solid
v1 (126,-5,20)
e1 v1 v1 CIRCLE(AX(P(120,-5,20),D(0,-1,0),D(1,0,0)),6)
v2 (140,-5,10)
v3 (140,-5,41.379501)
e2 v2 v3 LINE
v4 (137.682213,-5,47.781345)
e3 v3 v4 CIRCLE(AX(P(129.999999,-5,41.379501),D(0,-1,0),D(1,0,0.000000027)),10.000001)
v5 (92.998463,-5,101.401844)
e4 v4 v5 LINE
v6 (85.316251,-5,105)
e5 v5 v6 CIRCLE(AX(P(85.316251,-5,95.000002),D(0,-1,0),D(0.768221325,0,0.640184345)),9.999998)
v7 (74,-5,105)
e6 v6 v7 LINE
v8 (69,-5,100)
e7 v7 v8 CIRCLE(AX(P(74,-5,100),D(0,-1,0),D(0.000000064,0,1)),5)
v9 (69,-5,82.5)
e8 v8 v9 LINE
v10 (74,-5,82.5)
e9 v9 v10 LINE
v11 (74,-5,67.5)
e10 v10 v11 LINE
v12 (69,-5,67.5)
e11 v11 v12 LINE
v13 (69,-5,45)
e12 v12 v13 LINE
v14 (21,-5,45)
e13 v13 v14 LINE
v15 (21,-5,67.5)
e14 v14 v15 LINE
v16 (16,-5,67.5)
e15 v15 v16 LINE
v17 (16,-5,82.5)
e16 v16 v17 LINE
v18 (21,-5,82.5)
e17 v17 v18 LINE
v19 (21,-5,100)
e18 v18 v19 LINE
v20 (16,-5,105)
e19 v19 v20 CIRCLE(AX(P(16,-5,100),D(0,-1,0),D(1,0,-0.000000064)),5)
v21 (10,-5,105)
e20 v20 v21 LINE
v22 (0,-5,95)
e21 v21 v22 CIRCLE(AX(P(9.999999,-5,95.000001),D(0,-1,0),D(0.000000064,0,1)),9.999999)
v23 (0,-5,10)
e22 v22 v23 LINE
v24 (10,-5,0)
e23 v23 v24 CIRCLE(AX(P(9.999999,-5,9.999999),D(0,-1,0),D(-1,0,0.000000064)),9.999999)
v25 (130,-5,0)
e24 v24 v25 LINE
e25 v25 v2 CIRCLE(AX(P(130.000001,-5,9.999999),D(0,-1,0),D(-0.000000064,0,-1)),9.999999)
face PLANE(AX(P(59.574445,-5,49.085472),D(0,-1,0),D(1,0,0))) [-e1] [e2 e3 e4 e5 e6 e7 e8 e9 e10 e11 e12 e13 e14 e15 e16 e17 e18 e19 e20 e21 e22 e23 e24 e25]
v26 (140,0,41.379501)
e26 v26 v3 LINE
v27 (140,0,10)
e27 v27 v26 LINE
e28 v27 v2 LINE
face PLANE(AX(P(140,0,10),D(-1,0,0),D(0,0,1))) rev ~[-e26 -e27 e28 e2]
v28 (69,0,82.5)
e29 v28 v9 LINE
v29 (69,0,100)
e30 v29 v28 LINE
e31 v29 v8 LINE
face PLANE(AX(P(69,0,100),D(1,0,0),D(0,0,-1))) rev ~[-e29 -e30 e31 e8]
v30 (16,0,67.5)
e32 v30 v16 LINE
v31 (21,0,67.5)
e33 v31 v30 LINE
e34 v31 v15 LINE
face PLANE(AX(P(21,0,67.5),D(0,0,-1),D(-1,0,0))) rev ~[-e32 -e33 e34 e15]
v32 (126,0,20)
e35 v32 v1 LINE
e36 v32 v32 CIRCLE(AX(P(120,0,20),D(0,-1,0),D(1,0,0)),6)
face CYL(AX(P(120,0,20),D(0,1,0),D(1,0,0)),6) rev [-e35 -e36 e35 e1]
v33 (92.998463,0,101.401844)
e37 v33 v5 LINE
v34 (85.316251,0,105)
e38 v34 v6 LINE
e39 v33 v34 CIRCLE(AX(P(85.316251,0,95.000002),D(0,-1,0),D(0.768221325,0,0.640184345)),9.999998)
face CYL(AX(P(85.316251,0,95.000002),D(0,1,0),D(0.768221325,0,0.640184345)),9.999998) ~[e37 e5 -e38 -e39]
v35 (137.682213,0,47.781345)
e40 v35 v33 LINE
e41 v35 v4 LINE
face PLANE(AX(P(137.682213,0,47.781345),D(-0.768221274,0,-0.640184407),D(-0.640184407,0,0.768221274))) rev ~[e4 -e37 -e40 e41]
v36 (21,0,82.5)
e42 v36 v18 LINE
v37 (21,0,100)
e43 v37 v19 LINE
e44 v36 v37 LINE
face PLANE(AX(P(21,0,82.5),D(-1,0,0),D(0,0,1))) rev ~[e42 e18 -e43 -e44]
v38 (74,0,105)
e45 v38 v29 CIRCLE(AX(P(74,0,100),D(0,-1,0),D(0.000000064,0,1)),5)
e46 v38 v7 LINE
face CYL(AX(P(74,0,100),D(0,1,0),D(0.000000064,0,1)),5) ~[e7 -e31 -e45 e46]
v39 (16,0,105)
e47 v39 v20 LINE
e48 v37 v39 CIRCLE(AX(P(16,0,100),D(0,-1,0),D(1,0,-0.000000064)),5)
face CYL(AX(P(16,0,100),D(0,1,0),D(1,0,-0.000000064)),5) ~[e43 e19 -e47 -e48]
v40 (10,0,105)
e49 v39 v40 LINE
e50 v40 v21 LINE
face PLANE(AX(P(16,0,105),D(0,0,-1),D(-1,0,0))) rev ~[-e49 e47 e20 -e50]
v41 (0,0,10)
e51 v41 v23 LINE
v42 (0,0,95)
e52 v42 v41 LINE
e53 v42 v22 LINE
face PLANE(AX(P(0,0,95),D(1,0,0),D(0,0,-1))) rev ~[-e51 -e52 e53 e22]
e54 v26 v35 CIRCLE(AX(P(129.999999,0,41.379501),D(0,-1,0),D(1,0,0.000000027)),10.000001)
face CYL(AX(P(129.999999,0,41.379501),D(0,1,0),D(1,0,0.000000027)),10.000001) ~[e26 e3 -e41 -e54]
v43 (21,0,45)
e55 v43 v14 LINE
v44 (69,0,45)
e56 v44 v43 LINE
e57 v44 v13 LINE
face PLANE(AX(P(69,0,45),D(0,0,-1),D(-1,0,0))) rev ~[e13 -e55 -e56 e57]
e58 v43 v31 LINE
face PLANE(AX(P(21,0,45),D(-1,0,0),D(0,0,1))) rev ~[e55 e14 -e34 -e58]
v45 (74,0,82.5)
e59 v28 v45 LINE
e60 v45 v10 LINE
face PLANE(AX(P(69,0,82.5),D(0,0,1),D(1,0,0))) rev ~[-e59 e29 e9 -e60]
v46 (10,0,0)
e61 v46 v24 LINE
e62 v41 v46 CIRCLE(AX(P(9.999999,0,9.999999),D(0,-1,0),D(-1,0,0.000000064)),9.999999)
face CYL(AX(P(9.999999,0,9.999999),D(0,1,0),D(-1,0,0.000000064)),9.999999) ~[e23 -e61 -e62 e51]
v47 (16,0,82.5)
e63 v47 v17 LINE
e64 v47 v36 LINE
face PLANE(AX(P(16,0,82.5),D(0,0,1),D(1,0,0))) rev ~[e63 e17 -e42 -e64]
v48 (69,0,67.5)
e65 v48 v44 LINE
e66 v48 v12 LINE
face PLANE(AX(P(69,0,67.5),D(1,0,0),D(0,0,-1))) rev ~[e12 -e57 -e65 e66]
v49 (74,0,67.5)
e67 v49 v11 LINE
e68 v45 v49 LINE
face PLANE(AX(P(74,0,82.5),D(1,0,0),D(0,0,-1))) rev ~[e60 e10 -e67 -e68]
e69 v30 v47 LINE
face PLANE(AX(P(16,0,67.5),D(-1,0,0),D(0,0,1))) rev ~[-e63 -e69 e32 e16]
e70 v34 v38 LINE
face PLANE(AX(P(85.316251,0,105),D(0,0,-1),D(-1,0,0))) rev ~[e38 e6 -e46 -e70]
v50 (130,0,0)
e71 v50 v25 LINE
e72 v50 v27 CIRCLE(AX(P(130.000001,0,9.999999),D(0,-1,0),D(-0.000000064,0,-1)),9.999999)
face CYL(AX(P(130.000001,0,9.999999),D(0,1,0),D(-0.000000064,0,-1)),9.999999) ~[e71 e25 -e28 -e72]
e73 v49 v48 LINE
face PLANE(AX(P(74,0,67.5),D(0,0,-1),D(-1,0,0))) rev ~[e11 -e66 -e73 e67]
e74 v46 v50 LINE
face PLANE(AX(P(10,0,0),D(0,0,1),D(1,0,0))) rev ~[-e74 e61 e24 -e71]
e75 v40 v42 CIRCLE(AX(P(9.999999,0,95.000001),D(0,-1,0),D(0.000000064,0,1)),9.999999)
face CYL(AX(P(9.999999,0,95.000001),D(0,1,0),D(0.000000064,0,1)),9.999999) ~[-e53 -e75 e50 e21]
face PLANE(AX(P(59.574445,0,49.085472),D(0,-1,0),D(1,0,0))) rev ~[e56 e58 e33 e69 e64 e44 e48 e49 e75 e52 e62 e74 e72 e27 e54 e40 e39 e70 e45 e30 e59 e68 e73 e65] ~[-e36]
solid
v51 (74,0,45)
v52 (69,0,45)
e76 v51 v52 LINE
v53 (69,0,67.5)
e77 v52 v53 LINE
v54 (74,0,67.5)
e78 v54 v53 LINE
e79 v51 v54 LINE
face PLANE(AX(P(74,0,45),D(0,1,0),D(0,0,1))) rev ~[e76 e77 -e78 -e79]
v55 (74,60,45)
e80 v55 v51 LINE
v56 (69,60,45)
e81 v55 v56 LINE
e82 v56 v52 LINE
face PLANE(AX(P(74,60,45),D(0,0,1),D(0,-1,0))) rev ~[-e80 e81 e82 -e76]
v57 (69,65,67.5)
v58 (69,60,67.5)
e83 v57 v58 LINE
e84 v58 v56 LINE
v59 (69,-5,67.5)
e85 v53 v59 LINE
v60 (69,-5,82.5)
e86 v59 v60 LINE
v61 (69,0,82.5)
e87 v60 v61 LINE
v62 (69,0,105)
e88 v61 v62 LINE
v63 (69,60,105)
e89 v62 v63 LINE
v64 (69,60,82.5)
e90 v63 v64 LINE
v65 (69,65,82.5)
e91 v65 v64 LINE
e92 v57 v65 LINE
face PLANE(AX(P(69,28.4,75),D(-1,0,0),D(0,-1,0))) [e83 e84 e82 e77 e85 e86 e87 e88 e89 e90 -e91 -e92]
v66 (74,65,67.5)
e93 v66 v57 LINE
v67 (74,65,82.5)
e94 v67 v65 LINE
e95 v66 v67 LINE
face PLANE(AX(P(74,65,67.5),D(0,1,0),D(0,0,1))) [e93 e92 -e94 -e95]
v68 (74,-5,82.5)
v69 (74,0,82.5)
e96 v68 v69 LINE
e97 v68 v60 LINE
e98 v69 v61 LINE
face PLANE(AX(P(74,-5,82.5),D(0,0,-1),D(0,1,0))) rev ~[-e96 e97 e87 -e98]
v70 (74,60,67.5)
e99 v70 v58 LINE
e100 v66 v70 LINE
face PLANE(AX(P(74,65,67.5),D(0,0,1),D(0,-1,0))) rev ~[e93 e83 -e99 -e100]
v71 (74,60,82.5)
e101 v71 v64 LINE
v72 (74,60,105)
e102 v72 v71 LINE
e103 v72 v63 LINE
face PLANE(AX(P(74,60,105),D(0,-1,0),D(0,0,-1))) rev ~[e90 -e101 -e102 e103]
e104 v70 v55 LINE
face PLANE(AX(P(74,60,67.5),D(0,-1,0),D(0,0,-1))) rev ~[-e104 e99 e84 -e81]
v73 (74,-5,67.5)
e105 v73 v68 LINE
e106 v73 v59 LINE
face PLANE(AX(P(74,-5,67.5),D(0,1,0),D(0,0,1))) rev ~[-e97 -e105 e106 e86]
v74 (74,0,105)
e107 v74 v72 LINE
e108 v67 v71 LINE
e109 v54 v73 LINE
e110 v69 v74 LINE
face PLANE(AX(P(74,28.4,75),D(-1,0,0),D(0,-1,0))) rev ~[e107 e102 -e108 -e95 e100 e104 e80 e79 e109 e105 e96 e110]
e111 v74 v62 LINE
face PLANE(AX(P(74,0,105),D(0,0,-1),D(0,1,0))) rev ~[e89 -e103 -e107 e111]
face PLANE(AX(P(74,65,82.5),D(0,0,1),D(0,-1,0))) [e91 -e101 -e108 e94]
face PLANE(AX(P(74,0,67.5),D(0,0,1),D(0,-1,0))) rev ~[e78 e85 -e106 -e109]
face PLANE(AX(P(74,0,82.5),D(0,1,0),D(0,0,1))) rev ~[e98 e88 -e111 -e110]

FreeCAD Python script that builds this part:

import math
import FreeCAD as App
import Part
import Sketcher
from FreeCAD import Vector


def add_polygon(sketch, points):
    """Adds a closed chain of lines whose ends are joined by coincident constraints."""
    first, n = sketch.GeometryCount, len(points)
    for a, b in zip(points, points[1:] + points[:1]):
        sketch.addGeometry(Part.LineSegment(App.Vector(*a, 0), App.Vector(*b, 0)), False)
    for i in range(n):
        sketch.addConstraint(Sketcher.Constraint("Coincident", first + i, 2, first + (i + 1) % n, 1))

doc = App.newDocument("Part")
body = doc.addObject("PartDesign::Body", "Body")

# Sketch on XZ plane
sketch1 = doc.addObject("Sketcher::SketchObject", "Sketch")
body.addObject(sketch1)
sketch1.AttachmentSupport = (doc.XZ_Plane, [""])
sketch1.MapMode = "FlatFace"
sketch1.addGeometry([
    Part.ArcOfCircle(Part.Circle(Vector(9.999999, 9.999999, 0), Vector(0, 0, 1), 9.999999), math.radians(179.999996), math.radians(270.000004)),  # 0
    Part.LineSegment(Vector(10, 0, 0), Vector(130, 0, 0)),  # 1
    Part.ArcOfCircle(Part.Circle(Vector(130.000001, 9.999999, 0), Vector(0, 0, 1), 9.999999), math.radians(-90.000004), math.radians(0.000004)),  # 2
    Part.LineSegment(Vector(140, 10, 0), Vector(140, 41.379501, 0)),  # 3
    Part.ArcOfCircle(Part.Circle(Vector(129.999999, 41.379501, 0), Vector(0, 0, 1), 10.000001), math.radians(0.000002), math.radians(39.805566)),  # 4
    Part.LineSegment(Vector(137.682213, 47.781345, 0), Vector(92.998463, 101.401844, 0)),  # 5
    Part.ArcOfCircle(Part.Circle(Vector(85.316251, 95.000002, 0), Vector(0, 0, 1), 9.999998), math.radians(39.805567), math.radians(90)),  # 6
    Part.LineSegment(Vector(85.316251, 105, 0), Vector(74, 105, 0)),  # 7
    Part.ArcOfCircle(Part.Circle(Vector(74, 100, 0), Vector(0, 0, 1), 5), math.radians(89.999996), math.radians(180.000004)),  # 8
    Part.LineSegment(Vector(69, 100, 0), Vector(69, 82.5, 0)),  # 9
    Part.LineSegment(Vector(69, 82.5, 0), Vector(74, 82.5, 0)),  # 10
    Part.LineSegment(Vector(74, 82.5, 0), Vector(74, 67.5, 0)),  # 11
    Part.LineSegment(Vector(74, 67.5, 0), Vector(69, 67.5, 0)),  # 12
    Part.LineSegment(Vector(69, 67.5, 0), Vector(69, 45, 0)),  # 13
    Part.LineSegment(Vector(69, 45, 0), Vector(21, 45, 0)),  # 14
    Part.LineSegment(Vector(21, 45, 0), Vector(21, 67.5, 0)),  # 15
    Part.LineSegment(Vector(21, 67.5, 0), Vector(16, 67.5, 0)),  # 16
    Part.LineSegment(Vector(16, 67.5, 0), Vector(16, 82.5, 0)),  # 17
    Part.LineSegment(Vector(16, 82.5, 0), Vector(21, 82.5, 0)),  # 18
    Part.LineSegment(Vector(21, 82.5, 0), Vector(21, 100, 0)),  # 19
    Part.ArcOfCircle(Part.Circle(Vector(16, 100, 0), Vector(0, 0, 1), 5), math.radians(-0.000004), math.radians(90.000004)),  # 20
    Part.LineSegment(Vector(16, 105, 0), Vector(10, 105, 0)),  # 21
    Part.ArcOfCircle(Part.Circle(Vector(9.999999, 95.000001, 0), Vector(0, 0, 1), 9.999999), math.radians(89.999996), math.radians(180.000004)),  # 22
    Part.LineSegment(Vector(0, 95, 0), Vector(0, 10, 0)),  # 23
    Part.Circle(Vector(120, 20, 0), Vector(0, 0, 1), 6),  # 24
], False)
sketch1.addConstraint([
    Sketcher.Constraint("Tangent", 0, 2, 1, 1),
    Sketcher.Constraint("Tangent", 1, 2, 2, 1),
    Sketcher.Constraint("Tangent", 2, 2, 3, 1),
    Sketcher.Constraint("Tangent", 3, 2, 4, 1),
    Sketcher.Constraint("Tangent", 4, 2, 5, 1),
    Sketcher.Constraint("Tangent", 5, 2, 6, 1),
    Sketcher.Constraint("Tangent", 6, 2, 7, 1),
    Sketcher.Constraint("Tangent", 7, 2, 8, 1),
    Sketcher.Constraint("Tangent", 8, 2, 9, 1),
    Sketcher.Constraint("Coincident", 9, 2, 10, 1),
    Sketcher.Constraint("Coincident", 10, 2, 11, 1),
    Sketcher.Constraint("Coincident", 11, 2, 12, 1),
    Sketcher.Constraint("Coincident", 12, 2, 13, 1),
    Sketcher.Constraint("Coincident", 13, 2, 14, 1),
    Sketcher.Constraint("Coincident", 14, 2, 15, 1),
    Sketcher.Constraint("Coincident", 15, 2, 16, 1),
    Sketcher.Constraint("Coincident", 16, 2, 17, 1),
    Sketcher.Constraint("Coincident", 17, 2, 18, 1),
    Sketcher.Constraint("Coincident", 18, 2, 19, 1),
    Sketcher.Constraint("Tangent", 19, 2, 20, 1),
    Sketcher.Constraint("Tangent", 20, 2, 21, 1),
    Sketcher.Constraint("Tangent", 21, 2, 22, 1),
    Sketcher.Constraint("Tangent", 22, 2, 23, 1),
    Sketcher.Constraint("Tangent", 23, 2, 0, 1),
    Sketcher.Constraint("Horizontal", 1),
    Sketcher.Constraint("Vertical", 3),
    Sketcher.Constraint("Horizontal", 7),
    Sketcher.Constraint("Vertical", 9),
    Sketcher.Constraint("Horizontal", 10),
    Sketcher.Constraint("Vertical", 11),
    Sketcher.Constraint("Horizontal", 12),
    Sketcher.Constraint("Vertical", 13),
    Sketcher.Constraint("Horizontal", 14),
    Sketcher.Constraint("Vertical", 15),
    Sketcher.Constraint("Horizontal", 16),
    Sketcher.Constraint("Vertical", 17),
    Sketcher.Constraint("Horizontal", 18),
    Sketcher.Constraint("Vertical", 19),
    Sketcher.Constraint("Horizontal", 21),
    Sketcher.Constraint("Vertical", 23),
    Sketcher.Constraint("Equal", 0, 2),
    Sketcher.Constraint("Equal", 2, 6),
    Sketcher.Constraint("Equal", 8, 20),
    Sketcher.Constraint("Equal", 6, 22),
    Sketcher.Constraint("PointOnObject", 0, 2, -1),
    Sketcher.Constraint("PointOnObject", 22, 2, -2),
    Sketcher.Constraint("Horizontal", 8, 3, 20, 3),
    Sketcher.Constraint("Horizontal", 12, 2, 15, 2),
    Sketcher.Constraint("Horizontal", 10, 2, 17, 2),
    Sketcher.Constraint("Vertical", 4, 3, 1, 2),
    Sketcher.Constraint("Vertical", 7, 2, 10, 2),
    Sketcher.Constraint("Vertical", 9, 2, 12, 2),
    Sketcher.Constraint("Vertical", 20, 3, 16, 2),
    Sketcher.Constraint("Vertical", 15, 2, 18, 2),
    Sketcher.Constraint("Diameter", 24, 12.0),
    Sketcher.Constraint("Radius", 0, 9.999999),
    Sketcher.Constraint("Radius", 8, 5.0),
    Sketcher.Constraint("DistanceX", 1, 1, 1, 2, 120.0),
    Sketcher.Constraint("DistanceX", 14, 2, 14, 1, 48.0),
    Sketcher.Constraint("DistanceX", 21, 2, 21, 1, 6.0),
    Sketcher.Constraint("DistanceY", 11, 2, 11, 1, 15.0),
    Sketcher.Constraint("DistanceY", 23, 2, 23, 1, 85.0),
    Sketcher.Constraint("DistanceY", 9, 2, 9, 1, 17.5),
    Sketcher.Constraint("DistanceY", 13, 2, 13, 1, 22.5),
    Sketcher.Constraint("DistanceX", -1, 1, 24, 3, 120.0),
    Sketcher.Constraint("DistanceY", -1, 1, 24, 3, 20.0),
    Sketcher.Constraint("DistanceY", 3, 1, 3, 2, 31.379501),
    Sketcher.Constraint("DistanceX", 7, 2, 7, 1, 11.316251),
])
pad1 = doc.addObject("PartDesign::Pad", "Pad")
body.addObject(pad1)
pad1.Profile = sketch1
pad1.Length = 5
body2 = doc.addObject("PartDesign::Body", "Body001")

# Sketch on YZ plane
sketch2 = doc.addObject("Sketcher::SketchObject", "Sketch001")
body2.addObject(sketch2)
sketch2.AttachmentSupport = (doc.getObject("YZ_Plane001"), [""])
sketch2.MapMode = "FlatFace"
sketch2.AttachmentOffset = App.Placement(Vector(0, 0, 74), App.Rotation())
add_polygon(sketch2, [(-5, 67.5), (-5, 82.5), (0, 82.5), (0, 105), (60, 105), (60, 82.5), (65, 82.5), (65, 67.5), (60, 67.5), (60, 45), (0, 45), (0, 67.5)])  # lines 0-11
sketch2.addConstraint([
    Sketcher.Constraint("Vertical", 0),
    Sketcher.Constraint("Horizontal", 1),
    Sketcher.Constraint("Vertical", 2),
    Sketcher.Constraint("Horizontal", 3),
    Sketcher.Constraint("Vertical", 4),
    Sketcher.Constraint("Horizontal", 5),
    Sketcher.Constraint("Vertical", 6),
    Sketcher.Constraint("Horizontal", 7),
    Sketcher.Constraint("Vertical", 8),
    Sketcher.Constraint("Horizontal", 9),
    Sketcher.Constraint("Vertical", 10),
    Sketcher.Constraint("Horizontal", 11),
    Sketcher.Constraint("PointOnObject", 1, 2, -2),
    Sketcher.Constraint("PointOnObject", 9, 2, -2),
    Sketcher.Constraint("Horizontal", 1, 2, 4, 2),
    Sketcher.Constraint("Horizontal", 7, 2, 10, 2),
    Sketcher.Constraint("Vertical", 4, 2, 7, 2),
    Sketcher.Constraint("Equal", 1, 5),
    Sketcher.Constraint("Equal", 4, 8),
    Sketcher.Constraint("DistanceX", 1, 1, 1, 2, 5.0),
    Sketcher.Constraint("DistanceX", 3, 1, 3, 2, 60.0),
    Sketcher.Constraint("DistanceY", 0, 1, 0, 2, 15.0),
    Sketcher.Constraint("DistanceY", 2, 1, 2, 2, 22.5),
    Sketcher.Constraint("DistanceY", -1, 1, 2, 2, 105.0),
])
pad2 = doc.addObject("PartDesign::Pad", "Pad001")
body2.addObject(pad2)
pad2.Profile = sketch2
pad2.Length = 5
pad2.Reversed = True

doc.recompute()
